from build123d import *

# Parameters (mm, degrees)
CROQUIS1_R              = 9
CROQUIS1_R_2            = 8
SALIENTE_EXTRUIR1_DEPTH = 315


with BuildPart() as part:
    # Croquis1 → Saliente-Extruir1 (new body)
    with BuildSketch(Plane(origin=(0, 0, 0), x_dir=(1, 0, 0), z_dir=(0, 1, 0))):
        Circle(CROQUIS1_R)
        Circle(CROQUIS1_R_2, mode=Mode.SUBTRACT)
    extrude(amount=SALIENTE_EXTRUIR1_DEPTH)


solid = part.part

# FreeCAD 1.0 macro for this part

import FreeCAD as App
import Part
import Sketcher

V = App.Vector
Q = App.Units.Quantity

doc = App.newDocument("Part")
body = doc.addObject("PartDesign::Body", "Body")

# Sketch on XZ plane
sketch1 = doc.addObject("Sketcher::SketchObject", "Sketch")
body.addObject(sketch1)
sketch1.AttachmentSupport = (doc.XZ_Plane, [""])
sketch1.MapMode = "FlatFace"
sketch1.addGeometry([
    Part.Circle(V(0, 0, 0), V(0, 0, 1), 9),
    Part.Circle(V(0, 0, 0), V(0, 0, 1), 8),
], False)
sketch1.addConstraint([
    Sketcher.Constraint("Coincident", 0, 3, -1, 1),
    Sketcher.Constraint("Coincident", 1, 3, -1, 1),
    Sketcher.Constraint("Diameter", 0, Q("18 mm")),
    Sketcher.Constraint("Diameter", 1, Q("16 mm")),
])
pad1 = doc.addObject("PartDesign::Pad", "Pad")
body.addObject(pad1)
pad1.Profile = sketch1
pad1.Length = 315
pad1.Reversed = True

doc.recompute()
